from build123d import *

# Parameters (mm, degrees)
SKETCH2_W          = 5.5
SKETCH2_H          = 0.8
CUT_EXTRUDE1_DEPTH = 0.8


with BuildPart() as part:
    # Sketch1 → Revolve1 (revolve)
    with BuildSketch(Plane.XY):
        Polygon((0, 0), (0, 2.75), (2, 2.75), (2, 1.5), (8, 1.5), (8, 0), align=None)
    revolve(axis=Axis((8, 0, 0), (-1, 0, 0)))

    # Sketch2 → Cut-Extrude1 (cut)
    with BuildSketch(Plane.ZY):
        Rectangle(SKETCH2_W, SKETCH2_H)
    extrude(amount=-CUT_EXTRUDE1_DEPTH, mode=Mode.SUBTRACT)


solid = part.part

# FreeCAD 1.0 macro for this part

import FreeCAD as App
import Part
import Sketcher

V = App.Vector
Q = App.Units.Quantity


def add_polygon(sketch, points):
    """Adds a closed chain of lines whose ends are joined by coincident constraints."""
    first, n = sketch.GeometryCount, len(points)
    for a, b in zip(points, points[1:] + points[:1]):
        sketch.addGeometry(Part.LineSegment(App.Vector(*a, 0), App.Vector(*b, 0)), False)
    for i in range(n):
        sketch.addConstraint(Sketcher.Constraint("Coincident", first + i, 2, first + (i + 1) % n, 1))

doc = App.newDocument("Part")
body = doc.addObject("PartDesign::Body", "Body")

# Sketch on XY plane
sketch1 = doc.addObject("Sketcher::SketchObject", "Sketch")
body.addObject(sketch1)
sketch1.AttachmentSupport = (doc.XY_Plane, [""])
sketch1.MapMode = "FlatFace"
add_polygon(sketch1, [(0, 2.8), (0, 0), (8, 0), (8, 1.5), (2, 1.5), (2, 2.8)])  # lines 0-5
sketch1.addConstraint([
    Sketcher.Constraint("Vertical", 0),
    Sketcher.Constraint("Horizontal", 1),
    Sketcher.Constraint("Vertical", 2),
    Sketcher.Constraint("Horizontal", 3),
    Sketcher.Constraint("Vertical", 4),
    Sketcher.Constraint("Horizontal", 5),
    Sketcher.Constraint("Coincident", 0, 2, -1, 1),
    Sketcher.Constraint("DistanceX", 1, 1, 1, 2, Q("8 mm")),
    Sketcher.Constraint("DistanceX", 3, 2, 3, 1, Q("6 mm")),
    Sketcher.Constraint("DistanceY", 2, 1, 2, 2, Q("1.5 mm")),
    Sketcher.Constraint("DistanceY", 0, 2, 0, 1, Q("2.75 mm")),
])
revolution = doc.addObject("PartDesign::Revolution", "Revolution")
body.addObject(revolution)
revolution.Profile = sketch1
revolution.ReferenceAxis = (sketch1, ["H_Axis"])
revolution.Angle = 360

# Sketch on YZ plane
sketch2 = doc.addObject("Sketcher::SketchObject", "Sketch001")
body.addObject(sketch2)
sketch2.AttachmentSupport = (doc.YZ_Plane, [""])
sketch2.MapMode = "FlatFace"
add_polygon(sketch2, [(0.4, -2.8), (-0.4, -2.8), (-0.4, 2.8), (0.4, 2.8)])  # lines 0-3
sketch2.addConstraint([
    Sketcher.Constraint("Horizontal", 0),
    Sketcher.Constraint("Vertical", 1),
    Sketcher.Constraint("Horizontal", 2),
    Sketcher.Constraint("Vertical", 3),
    Sketcher.Constraint("Symmetric", 0, 2, 2, 2, -1, 1),
    Sketcher.Constraint("DistanceX", 0, 2, 0, 1, Q("0.8 mm")),
    Sketcher.Constraint("DistanceY", 1, 1, 1, 2, Q("5.5 mm")),
])
pocket1 = doc.addObject("PartDesign::Pocket", "Pocket")
body.addObject(pocket1)
pocket1.Profile = sketch2
pocket1.Length = 0.8
pocket1.Reversed = True

doc.recompute()
